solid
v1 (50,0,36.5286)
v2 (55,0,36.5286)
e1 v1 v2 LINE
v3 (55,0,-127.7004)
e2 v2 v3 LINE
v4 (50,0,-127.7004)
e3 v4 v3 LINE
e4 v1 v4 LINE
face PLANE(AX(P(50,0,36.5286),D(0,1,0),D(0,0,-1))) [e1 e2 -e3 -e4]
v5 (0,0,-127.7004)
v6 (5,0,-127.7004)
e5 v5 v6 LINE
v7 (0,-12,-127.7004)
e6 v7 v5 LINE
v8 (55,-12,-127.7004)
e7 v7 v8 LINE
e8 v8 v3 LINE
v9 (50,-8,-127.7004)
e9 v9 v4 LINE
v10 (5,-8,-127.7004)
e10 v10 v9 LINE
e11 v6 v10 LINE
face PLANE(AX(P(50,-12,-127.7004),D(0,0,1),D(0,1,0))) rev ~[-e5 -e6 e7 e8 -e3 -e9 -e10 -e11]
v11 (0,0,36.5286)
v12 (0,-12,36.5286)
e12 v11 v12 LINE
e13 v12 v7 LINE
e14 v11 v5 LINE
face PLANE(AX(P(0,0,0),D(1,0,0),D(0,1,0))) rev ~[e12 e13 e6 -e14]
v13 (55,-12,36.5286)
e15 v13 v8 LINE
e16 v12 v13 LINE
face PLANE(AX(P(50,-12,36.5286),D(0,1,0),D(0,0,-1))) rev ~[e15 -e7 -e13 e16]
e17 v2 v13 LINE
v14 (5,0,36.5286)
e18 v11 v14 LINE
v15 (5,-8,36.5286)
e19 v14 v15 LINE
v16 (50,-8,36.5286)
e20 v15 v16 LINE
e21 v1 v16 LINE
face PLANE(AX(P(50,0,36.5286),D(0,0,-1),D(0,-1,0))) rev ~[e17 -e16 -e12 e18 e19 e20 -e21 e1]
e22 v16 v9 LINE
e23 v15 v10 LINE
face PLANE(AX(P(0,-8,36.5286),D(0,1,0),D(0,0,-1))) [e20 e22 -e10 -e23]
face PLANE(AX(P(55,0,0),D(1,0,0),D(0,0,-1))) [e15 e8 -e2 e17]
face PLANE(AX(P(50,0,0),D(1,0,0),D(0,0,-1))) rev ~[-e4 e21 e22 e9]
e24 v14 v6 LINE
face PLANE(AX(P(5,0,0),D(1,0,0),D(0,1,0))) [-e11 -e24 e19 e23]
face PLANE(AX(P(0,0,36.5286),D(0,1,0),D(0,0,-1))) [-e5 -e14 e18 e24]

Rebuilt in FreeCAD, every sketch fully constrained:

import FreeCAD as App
import Part
import Sketcher

V = App.Vector
Q = App.Units.Quantity

doc = App.newDocument("Part")
body = doc.addObject("PartDesign::Body", "Body")

# Sketch on YZ plane
sketch1 = doc.addObject("Sketcher::SketchObject", "Sketch")
body.addObject(sketch1)
sketch1.AttachmentSupport = (doc.YZ_Plane, [""])
sketch1.MapMode = "FlatFace"
sketch1.addGeometry(Part.LineSegment(V(0, -128, 0), V(0, 37, 0)), False)
sketch1.addGeometry(Part.LineSegment(V(0, 37, 0), V(-8, 37, 0)), False)
sketch1.addGeometry(Part.LineSegment(V(-8, 37, 0), V(-8, -128, 0)), False)
sketch1.addGeometry(Part.LineSegment(V(-8, -128, 0), V(0, -128, 0)), False)
sketch1.addConstraint(Sketcher.Constraint("Coincident", 0, 2, 1, 1))
sketch1.addConstraint(Sketcher.Constraint("Coincident", 1, 2, 2, 1))
sketch1.addConstraint(Sketcher.Constraint("Coincident", 2, 2, 3, 1))
sketch1.addConstraint(Sketcher.Constraint("Coincident", 3, 2, 0, 1))
sketch1.addConstraint(Sketcher.Constraint("Vertical", 0))
sketch1.addConstraint(Sketcher.Constraint("Horizontal", 1))
sketch1.addConstraint(Sketcher.Constraint("Vertical", 2))
sketch1.addConstraint(Sketcher.Constraint("Horizontal", 3))
sketch1.addConstraint(Sketcher.Constraint("PointOnObject", 0, 2, -2))
sketch1.addConstraint(Sketcher.Constraint("DistanceX", 1, 2, 1, 1, Q("8 mm")))
sketch1.addConstraint(Sketcher.Constraint("DistanceY", 0, 1, 0, 2, Q("164.229 mm")))
sketch1.addConstraint(Sketcher.Constraint("DistanceY", -1, 1, 0, 2, Q("36.5286 mm")))
pad1 = doc.addObject("PartDesign::Pad", "Pad")
body.addObject(pad1)
pad1.Profile = sketch1
pad1.Length = 5

# Sketch on YZ plane
sketch2 = doc.addObject("Sketcher::SketchObject", "Sketch001")
body.addObject(sketch2)
sketch2.AttachmentSupport = (doc.YZ_Plane, [""])
sketch2.MapMode = "FlatFace"
sketch2.addGeometry(Part.LineSegment(V(-8, -127.7, 0), V(-8, 36.5, 0)), False)
sketch2.addGeometry(Part.LineSegment(V(-8, 36.5, 0), V(-12, 36.5, 0)), False)
sketch2.addGeometry(Part.LineSegment(V(-12, 36.5, 0), V(-12, -127.7, 0)), False)
sketch2.addGeometry(Part.LineSegment(V(-12, -127.7, 0), V(-8, -127.7, 0)), False)
sketch2.addConstraint(Sketcher.Constraint("Coincident", 0, 2, 1, 1))
sketch2.addConstraint(Sketcher.Constraint("Coincident", 1, 2, 2, 1))
sketch2.addConstraint(Sketcher.Constraint("Coincident", 2, 2, 3, 1))
sketch2.addConstraint(Sketcher.Constraint("Coincident", 3, 2, 0, 1))
sketch2.addConstraint(Sketcher.Constraint("Vertical", 0))
sketch2.addConstraint(Sketcher.Constraint("Horizontal", 1))
sketch2.addConstraint(Sketcher.Constraint("Vertical", 2))
sketch2.addConstraint(Sketcher.Constraint("Horizontal", 3))
sketch2.addConstraint(Sketcher.Constraint("DistanceX", 0, 2, -1, 1, Q("8 mm")))
sketch2.addConstraint(Sketcher.Constraint("DistanceX", 1, 2, 1, 1, Q("4 mm")))
sketch2.addConstraint(Sketcher.Constraint("DistanceY", 0, 1, 0, 2, Q("164.229 mm")))
sketch2.addConstraint(Sketcher.Constraint("DistanceY", -1, 1, 0, 2, Q("36.5286 mm")))
pad2 = doc.addObject("PartDesign::Pad", "Pad001")
body.addObject(pad2)
pad2.Profile = sketch2
pad2.Length = 50

# Sketch on YZ plane
sketch3 = doc.addObject("Sketcher::SketchObject", "Sketch002")
body.addObject(sketch3)
sketch3.AttachmentSupport = (doc.YZ_Plane, [""])
sketch3.MapMode = "FlatFace"
sketch3.AttachmentOffset = App.Placement(V(0, 0, 50), App.Rotation())
sketch3.addGeometry(Part.LineSegment(V(0, 37, 0), V(-12, 37, 0)), False)
sketch3.addGeometry(Part.LineSegment(V(-12, 37, 0), V(-12, -128, 0)), False)
sketch3.addGeometry(Part.LineSegment(V(-12, -128, 0), V(0, -128, 0)), False)
sketch3.addGeometry(Part.LineSegment(V(0, -128, 0), V(0, 37, 0)), False)
sketch3.addConstraint(Sketcher.Constraint("Coincident", 0, 2, 1, 1))
sketch3.addConstraint(Sketcher.Constraint("Coincident", 1, 2, 2, 1))
sketch3.addConstraint(Sketcher.Constraint("Coincident", 2, 2, 3, 1))
sketch3.addConstraint(Sketcher.Constraint("Coincident", 3, 2, 0, 1))
sketch3.addConstraint(Sketcher.Constraint("Horizontal", 0))
sketch3.addConstraint(Sketcher.Constraint("Vertical", 1))
sketch3.addConstraint(Sketcher.Constraint("Horizontal", 2))
sketch3.addConstraint(Sketcher.Constraint("Vertical", 3))
sketch3.addConstraint(Sketcher.Constraint("PointOnObject", 2, 2, -2))
sketch3.addConstraint(Sketcher.Constraint("DistanceX", 0, 2, 0, 1, Q("12 mm")))
sketch3.addConstraint(Sketcher.Constraint("DistanceY", 1, 2, 1, 1, Q("164.229 mm")))
sketch3.addConstraint(Sketcher.Constraint("DistanceY", -1, 1, 0, 2, Q("36.5286 mm")))
pad3 = doc.addObject("PartDesign::Pad", "Pad002")
body.addObject(pad3)
pad3.Profile = sketch3
pad3.Length = 5

doc.recompute()
